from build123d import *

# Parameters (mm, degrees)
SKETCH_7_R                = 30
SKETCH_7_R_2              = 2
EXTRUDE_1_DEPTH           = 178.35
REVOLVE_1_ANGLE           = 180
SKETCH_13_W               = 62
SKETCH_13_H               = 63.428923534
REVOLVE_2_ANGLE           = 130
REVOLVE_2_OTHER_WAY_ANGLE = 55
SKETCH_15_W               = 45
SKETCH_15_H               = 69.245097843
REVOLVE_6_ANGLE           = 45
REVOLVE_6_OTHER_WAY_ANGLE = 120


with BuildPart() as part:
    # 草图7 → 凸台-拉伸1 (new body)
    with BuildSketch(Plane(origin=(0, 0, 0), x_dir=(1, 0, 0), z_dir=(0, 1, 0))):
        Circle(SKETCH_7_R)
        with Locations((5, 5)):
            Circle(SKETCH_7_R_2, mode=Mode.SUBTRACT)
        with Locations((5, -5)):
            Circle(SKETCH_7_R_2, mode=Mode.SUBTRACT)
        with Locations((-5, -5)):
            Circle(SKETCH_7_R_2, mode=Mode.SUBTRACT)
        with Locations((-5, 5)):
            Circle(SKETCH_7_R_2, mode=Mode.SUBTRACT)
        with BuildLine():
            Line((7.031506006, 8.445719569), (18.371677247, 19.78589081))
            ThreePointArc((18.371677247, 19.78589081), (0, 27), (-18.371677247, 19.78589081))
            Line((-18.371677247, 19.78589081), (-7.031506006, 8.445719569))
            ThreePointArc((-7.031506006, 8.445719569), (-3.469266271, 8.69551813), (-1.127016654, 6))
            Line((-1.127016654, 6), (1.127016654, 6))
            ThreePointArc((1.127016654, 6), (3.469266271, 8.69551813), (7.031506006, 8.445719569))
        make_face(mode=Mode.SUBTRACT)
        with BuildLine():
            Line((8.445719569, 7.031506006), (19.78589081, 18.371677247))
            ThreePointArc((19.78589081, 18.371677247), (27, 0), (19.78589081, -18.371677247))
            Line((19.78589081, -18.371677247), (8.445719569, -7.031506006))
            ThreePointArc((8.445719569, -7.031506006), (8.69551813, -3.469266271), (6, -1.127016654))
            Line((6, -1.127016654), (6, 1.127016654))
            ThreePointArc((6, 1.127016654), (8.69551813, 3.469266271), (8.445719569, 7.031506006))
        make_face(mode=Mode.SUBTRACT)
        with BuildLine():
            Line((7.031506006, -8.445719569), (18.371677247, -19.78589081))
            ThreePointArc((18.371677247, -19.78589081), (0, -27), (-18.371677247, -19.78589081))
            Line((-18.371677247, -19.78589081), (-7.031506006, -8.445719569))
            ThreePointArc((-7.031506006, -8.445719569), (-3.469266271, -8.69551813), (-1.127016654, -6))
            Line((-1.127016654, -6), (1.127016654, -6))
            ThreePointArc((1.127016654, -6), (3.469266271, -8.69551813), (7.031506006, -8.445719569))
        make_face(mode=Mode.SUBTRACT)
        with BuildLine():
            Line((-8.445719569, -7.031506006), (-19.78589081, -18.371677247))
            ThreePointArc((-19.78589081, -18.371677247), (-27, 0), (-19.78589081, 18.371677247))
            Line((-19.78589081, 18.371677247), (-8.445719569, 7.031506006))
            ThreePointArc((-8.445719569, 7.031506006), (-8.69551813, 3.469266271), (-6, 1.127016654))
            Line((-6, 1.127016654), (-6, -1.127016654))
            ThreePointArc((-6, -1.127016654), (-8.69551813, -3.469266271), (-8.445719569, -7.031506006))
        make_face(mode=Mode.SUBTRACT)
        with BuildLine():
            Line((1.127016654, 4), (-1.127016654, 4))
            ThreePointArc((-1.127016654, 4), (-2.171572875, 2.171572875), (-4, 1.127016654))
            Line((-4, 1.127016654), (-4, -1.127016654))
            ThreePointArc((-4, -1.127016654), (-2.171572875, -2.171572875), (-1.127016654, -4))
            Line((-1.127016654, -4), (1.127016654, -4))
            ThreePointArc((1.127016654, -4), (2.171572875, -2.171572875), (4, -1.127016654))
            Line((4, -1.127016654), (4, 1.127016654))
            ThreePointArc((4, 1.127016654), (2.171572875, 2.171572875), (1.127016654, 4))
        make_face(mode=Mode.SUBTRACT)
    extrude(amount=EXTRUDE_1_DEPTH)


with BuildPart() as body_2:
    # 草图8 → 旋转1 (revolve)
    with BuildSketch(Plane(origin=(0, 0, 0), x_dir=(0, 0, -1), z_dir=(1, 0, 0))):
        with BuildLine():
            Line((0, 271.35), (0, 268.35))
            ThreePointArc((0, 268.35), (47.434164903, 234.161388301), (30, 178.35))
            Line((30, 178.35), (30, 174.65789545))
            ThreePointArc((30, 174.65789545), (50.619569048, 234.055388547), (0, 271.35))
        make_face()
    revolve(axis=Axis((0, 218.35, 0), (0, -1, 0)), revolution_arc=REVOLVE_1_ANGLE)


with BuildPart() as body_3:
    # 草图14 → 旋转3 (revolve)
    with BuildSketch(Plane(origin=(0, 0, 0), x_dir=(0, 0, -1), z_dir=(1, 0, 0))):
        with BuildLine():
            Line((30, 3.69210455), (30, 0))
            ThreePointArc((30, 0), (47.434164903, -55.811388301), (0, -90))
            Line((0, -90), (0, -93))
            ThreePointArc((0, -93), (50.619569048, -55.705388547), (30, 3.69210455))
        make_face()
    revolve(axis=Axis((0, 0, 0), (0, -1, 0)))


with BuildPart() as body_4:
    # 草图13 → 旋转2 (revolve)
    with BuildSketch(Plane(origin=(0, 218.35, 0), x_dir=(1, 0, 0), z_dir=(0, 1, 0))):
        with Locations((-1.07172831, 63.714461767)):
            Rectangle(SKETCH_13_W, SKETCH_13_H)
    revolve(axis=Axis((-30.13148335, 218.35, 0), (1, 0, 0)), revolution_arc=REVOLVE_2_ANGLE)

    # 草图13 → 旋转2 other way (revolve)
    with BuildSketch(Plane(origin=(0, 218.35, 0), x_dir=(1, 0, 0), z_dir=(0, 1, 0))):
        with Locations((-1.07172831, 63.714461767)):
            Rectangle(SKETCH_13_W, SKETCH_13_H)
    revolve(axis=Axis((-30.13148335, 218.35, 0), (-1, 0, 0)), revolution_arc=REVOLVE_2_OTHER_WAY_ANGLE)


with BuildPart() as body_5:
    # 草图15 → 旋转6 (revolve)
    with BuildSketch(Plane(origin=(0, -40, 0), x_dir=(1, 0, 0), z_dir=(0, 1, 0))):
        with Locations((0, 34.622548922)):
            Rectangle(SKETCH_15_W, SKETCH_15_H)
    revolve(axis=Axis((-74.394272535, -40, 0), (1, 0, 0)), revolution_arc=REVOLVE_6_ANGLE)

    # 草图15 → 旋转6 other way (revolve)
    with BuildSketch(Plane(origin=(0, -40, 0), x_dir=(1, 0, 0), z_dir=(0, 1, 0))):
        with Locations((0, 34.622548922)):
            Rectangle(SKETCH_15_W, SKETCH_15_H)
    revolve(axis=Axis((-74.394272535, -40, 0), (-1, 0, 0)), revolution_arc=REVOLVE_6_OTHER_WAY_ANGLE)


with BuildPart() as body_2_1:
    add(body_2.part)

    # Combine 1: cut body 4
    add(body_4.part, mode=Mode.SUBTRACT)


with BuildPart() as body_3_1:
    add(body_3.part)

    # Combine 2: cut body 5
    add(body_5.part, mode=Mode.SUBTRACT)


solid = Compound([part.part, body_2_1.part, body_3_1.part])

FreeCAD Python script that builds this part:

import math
import FreeCAD as App
import Part
import Sketcher

V = App.Vector
Q = App.Units.Quantity


def add_polygon(sketch, points):
    """Adds a closed chain of lines whose ends are joined by coincident constraints."""
    first, n = sketch.GeometryCount, len(points)
    for a, b in zip(points, points[1:] + points[:1]):
        sketch.addGeometry(Part.LineSegment(App.Vector(*a, 0), App.Vector(*b, 0)), False)
    for i in range(n):
        sketch.addConstraint(Sketcher.Constraint("Coincident", first + i, 2, first + (i + 1) % n, 1))

doc = App.newDocument("Part")
body = doc.addObject("PartDesign::Body", "Body")

# Sketch on XZ plane
sketch1 = body.newObject("Sketcher::SketchObject", "Sketch")
sketch1.AttachmentSupport = (doc.getObject("XZ_Plane"), [""])
sketch1.MapMode = "FlatFace"
sketch1.addGeometry(Part.Circle(V(0, 0, 0), V(0, 0, 1), 30), False)
sketch1.addGeometry(Part.ArcOfCircle(Part.Circle(V(5, 5, 0), V(0, 0, 1), 4), math.radians(59), math.radians(166)), False)
sketch1.addGeometry(Part.LineSegment(V(7, 8.4, 0), V(18.4, 19.8, 0)), False)
sketch1.addGeometry(Part.ArcOfCircle(Part.Circle(V(0, 0, 0), V(0, 0, 1), 27), math.radians(47), math.radians(133)), False)
sketch1.addGeometry(Part.LineSegment(V(-18.4, 19.8, 0), V(-7, 8.4, 0)), False)
sketch1.addGeometry(Part.ArcOfCircle(Part.Circle(V(-5, 5, 0), V(0, 0, 1), 4), math.radians(14), math.radians(121)), False)
sketch1.addGeometry(Part.LineSegment(V(-1.1, 6, 0), V(1.1, 6, 0)), False)
sketch1.addGeometry(Part.Circle(V(-5, 5, 0), V(0, 0, 1), 2), False)
sketch1.addGeometry(Part.Circle(V(5, 5, 0), V(0, 0, 1), 2), False)
sketch1.addGeometry(Part.ArcOfCircle(Part.Circle(V(-5, 5, 0), V(0, 0, 1), 4), math.radians(149), math.radians(256)), False)
sketch1.addGeometry(Part.LineSegment(V(-8.4, 7, 0), V(-19.8, 18.4, 0)), False)
sketch1.addGeometry(Part.ArcOfCircle(Part.Circle(V(0, 0, 0), V(0, 0, 1), 27), math.radians(137), math.radians(223)), False)
sketch1.addGeometry(Part.LineSegment(V(-19.8, -18.4, 0), V(-8.4, -7, 0)), False)
sketch1.addGeometry(Part.ArcOfCircle(Part.Circle(V(-5, -5, 0), V(0, 0, 1), 4), math.radians(104), math.radians(211)), False)
sketch1.addGeometry(Part.LineSegment(V(-6, -1.1, 0), V(-6, 1.1, 0)), False)
sketch1.addGeometry(Part.LineSegment(V(-1.1, -4, 0), V(1.1, -4, 0)), False)
sketch1.addGeometry(Part.ArcOfCircle(Part.Circle(V(5, -5, 0), V(0, 0, 1), 4), math.radians(104), math.radians(166)), False)
sketch1.addGeometry(Part.LineSegment(V(4, -1.1, 0), V(4, 1.1, 0)), False)
sketch1.addGeometry(Part.ArcOfCircle(Part.Circle(V(5, 5, 0), V(0, 0, 1), 4), math.radians(-166), math.radians(-104)), False)
sketch1.addGeometry(Part.LineSegment(V(1.1, 4, 0), V(-1.1, 4, 0)), False)
sketch1.addGeometry(Part.ArcOfCircle(Part.Circle(V(-5, 5, 0), V(0, 0, 1), 4), math.radians(-76), math.radians(-14)), False)
sketch1.addGeometry(Part.LineSegment(V(-4, 1.1, 0), V(-4, -1.1, 0)), False)
sketch1.addGeometry(Part.ArcOfCircle(Part.Circle(V(-5, -5, 0), V(0, 0, 1), 4), math.radians(14), math.radians(76)), False)
sketch1.addGeometry(Part.Circle(V(-5, -5, 0), V(0, 0, 1), 2), False)
sketch1.addGeometry(Part.LineSegment(V(18.4, -19.8, 0), V(7, -8.4, 0)), False)
sketch1.addGeometry(Part.ArcOfCircle(Part.Circle(V(5, -5, 0), V(0, 0, 1), 4), math.radians(-166), math.radians(-59)), False)
sketch1.addGeometry(Part.LineSegment(V(1.1, -6, 0), V(-1.1, -6, 0)), False)
sketch1.addGeometry(Part.ArcOfCircle(Part.Circle(V(-5, -5, 0), V(0, 0, 1), 4), math.radians(-121), math.radians(-14)), False)
sketch1.addGeometry(Part.LineSegment(V(-7, -8.4, 0), V(-18.4, -19.8, 0)), False)
sketch1.addGeometry(Part.ArcOfCircle(Part.Circle(V(0, 0, 0), V(0, 0, 1), 27), math.radians(-133), math.radians(-47)), False)
sketch1.addGeometry(Part.Circle(V(5, -5, 0), V(0, 0, 1), 2), False)
sketch1.addGeometry(Part.ArcOfCircle(Part.Circle(V(5, -5, 0), V(0, 0, 1), 4), math.radians(-31), math.radians(76)), False)
sketch1.addGeometry(Part.LineSegment(V(8.4, -7, 0), V(19.8, -18.4, 0)), False)
sketch1.addGeometry(Part.ArcOfCircle(Part.Circle(V(0, 0, 0), V(0, 0, 1), 27), math.radians(-43), math.radians(43)), False)
sketch1.addGeometry(Part.LineSegment(V(19.8, 18.4, 0), V(8.4, 7, 0)), False)
sketch1.addGeometry(Part.ArcOfCircle(Part.Circle(V(5, 5, 0), V(0, 0, 1), 4), math.radians(-76), math.radians(31)), False)
sketch1.addGeometry(Part.LineSegment(V(6, 1.1, 0), V(6, -1.1, 0)), False)
sketch1.addConstraint(Sketcher.Constraint("Coincident", 1, 1, 2, 1))
sketch1.addConstraint(Sketcher.Constraint("Coincident", 2, 2, 3, 1))
sketch1.addConstraint(Sketcher.Constraint("Coincident", 3, 2, 4, 1))
sketch1.addConstraint(Sketcher.Constraint("Coincident", 4, 2, 5, 2))
sketch1.addConstraint(Sketcher.Constraint("Coincident", 5, 1, 6, 1))
sketch1.addConstraint(Sketcher.Constraint("Coincident", 6, 2, 1, 2))
sketch1.addConstraint(Sketcher.Constraint("Coincident", 9, 1, 10, 1))
sketch1.addConstraint(Sketcher.Constraint("Coincident", 10, 2, 11, 1))
sketch1.addConstraint(Sketcher.Constraint("Coincident", 11, 2, 12, 1))
sketch1.addConstraint(Sketcher.Constraint("Coincident", 12, 2, 13, 2))
sketch1.addConstraint(Sketcher.Constraint("Coincident", 13, 1, 14, 1))
sketch1.addConstraint(Sketcher.Constraint("Coincident", 14, 2, 9, 2))
sketch1.addConstraint(Sketcher.Constraint("Coincident", 15, 2, 16, 2))
sketch1.addConstraint(Sketcher.Constraint("Coincident", 16, 1, 17, 1))
sketch1.addConstraint(Sketcher.Constraint("Coincident", 17, 2, 18, 2))
sketch1.addConstraint(Sketcher.Constraint("Coincident", 18, 1, 19, 1))
sketch1.addConstraint(Sketcher.Constraint("Coincident", 19, 2, 20, 2))
sketch1.addConstraint(Sketcher.Constraint("Coincident", 20, 1, 21, 1))
sketch1.addConstraint(Sketcher.Constraint("Coincident", 21, 2, 22, 2))
sketch1.addConstraint(Sketcher.Constraint("Coincident", 22, 1, 15, 1))
sketch1.addConstraint(Sketcher.Constraint("Coincident", 24, 2, 25, 2))
sketch1.addConstraint(Sketcher.Constraint("Coincident", 25, 1, 26, 1))
sketch1.addConstraint(Sketcher.Constraint("Coincident", 26, 2, 27, 2))
sketch1.addConstraint(Sketcher.Constraint("Coincident", 27, 1, 28, 1))
sketch1.addConstraint(Sketcher.Constraint("Coincident", 28, 2, 29, 1))
sketch1.addConstraint(Sketcher.Constraint("Coincident", 29, 2, 24, 1))
sketch1.addConstraint(Sketcher.Constraint("Coincident", 31, 1, 32, 1))
sketch1.addConstraint(Sketcher.Constraint("Coincident", 32, 2, 33, 1))
sketch1.addConstraint(Sketcher.Constraint("Coincident", 33, 2, 34, 1))
sketch1.addConstraint(Sketcher.Constraint("Coincident", 34, 2, 35, 2))
sketch1.addConstraint(Sketcher.Constraint("Coincident", 35, 1, 36, 1))
sketch1.addConstraint(Sketcher.Constraint("Coincident", 36, 2, 31, 2))
sketch1.addConstraint(Sketcher.Constraint("Horizontal", 6))
sketch1.addConstraint(Sketcher.Constraint("Vertical", 14))
sketch1.addConstraint(Sketcher.Constraint("Horizontal", 15))
sketch1.addConstraint(Sketcher.Constraint("Vertical", 17))
sketch1.addConstraint(Sketcher.Constraint("Horizontal", 19))
sketch1.addConstraint(Sketcher.Constraint("Vertical", 21))
sketch1.addConstraint(Sketcher.Constraint("Horizontal", 26))
sketch1.addConstraint(Sketcher.Constraint("Vertical", 36))
sketch1.addConstraint(Sketcher.Constraint("Coincident", 0, 3, -1, 1))
sketch1.addConstraint(Sketcher.Constraint("Coincident", 3, 3, -1, 1))
sketch1.addConstraint(Sketcher.Constraint("Coincident", 11, 3, -1, 1))
sketch1.addConstraint(Sketcher.Constraint("Coincident", 29, 3, -1, 1))
sketch1.addConstraint(Sketcher.Constraint("Coincident", 33, 3, -1, 1))
sketch1.addConstraint(Sketcher.Constraint("Coincident", 7, 3, 5, 3))
sketch1.addConstraint(Sketcher.Constraint("Coincident", 8, 3, 1, 3))
sketch1.addConstraint(Sketcher.Constraint("Coincident", 9, 3, 5, 3))
sketch1.addConstraint(Sketcher.Constraint("Coincident", 18, 3, 1, 3))
sketch1.addConstraint(Sketcher.Constraint("Coincident", 20, 3, 5, 3))
sketch1.addConstraint(Sketcher.Constraint("Coincident", 22, 3, 13, 3))
sketch1.addConstraint(Sketcher.Constraint("Coincident", 23, 3, 13, 3))
sketch1.addConstraint(Sketcher.Constraint("Coincident", 25, 3, 16, 3))
sketch1.addConstraint(Sketcher.Constraint("Coincident", 27, 3, 13, 3))
sketch1.addConstraint(Sketcher.Constraint("Coincident", 30, 3, 16, 3))
sketch1.addConstraint(Sketcher.Constraint("Coincident", 31, 3, 16, 3))
sketch1.addConstraint(Sketcher.Constraint("Coincident", 35, 3, 1, 3))
sketch1.addConstraint(Sketcher.Constraint("Equal", 1, 5))
sketch1.addConstraint(Sketcher.Constraint("Equal", 7, 8))
sketch1.addConstraint(Sketcher.Constraint("Equal", 5, 9))
sketch1.addConstraint(Sketcher.Constraint("Equal", 3, 11))
sketch1.addConstraint(Sketcher.Constraint("Equal", 9, 13))
sketch1.addConstraint(Sketcher.Constraint("Equal", 13, 16))
sketch1.addConstraint(Sketcher.Constraint("Equal", 16, 18))
sketch1.addConstraint(Sketcher.Constraint("Equal", 18, 20))
sketch1.addConstraint(Sketcher.Constraint("Equal", 20, 22))
sketch1.addConstraint(Sketcher.Constraint("Equal", 8, 23))
sketch1.addConstraint(Sketcher.Constraint("Equal", 22, 25))
sketch1.addConstraint(Sketcher.Constraint("Equal", 25, 27))
sketch1.addConstraint(Sketcher.Constraint("Equal", 11, 29))
sketch1.addConstraint(Sketcher.Constraint("Equal", 23, 30))
sketch1.addConstraint(Sketcher.Constraint("Equal", 27, 31))
sketch1.addConstraint(Sketcher.Constraint("Equal", 29, 33))
sketch1.addConstraint(Sketcher.Constraint("Equal", 31, 35))
sketch1.addConstraint(Sketcher.Constraint("Symmetric", 1, 3, 13, 3, -1, 1))
sketch1.addConstraint(Sketcher.Constraint("Symmetric", 5, 3, 16, 3, -1, 1))
sketch1.addConstraint(Sketcher.Constraint("Symmetric", 1, 3, 5, 3, -2))
sketch1.addConstraint(Sketcher.Constraint("Perpendicular", 2, 4))
sketch1.addConstraint(Sketcher.Constraint("Parallel", 4, 10))
sketch1.addConstraint(Sketcher.Constraint("Perpendicular", 10, 12))
sketch1.addConstraint(Sketcher.Constraint("Perpendicular", 12, 24))
sketch1.addConstraint(Sketcher.Constraint("Perpendicular", 24, 28))
sketch1.addConstraint(Sketcher.Constraint("Perpendicular", 28, 32))
sketch1.addConstraint(Sketcher.Constraint("Perpendicular", 32, 34))
sketch1.addConstraint(Sketcher.Constraint("Horizontal", 2, 2, 3, 2))
sketch1.addConstraint(Sketcher.Constraint("Horizontal", 1, 1, 4, 2))
sketch1.addConstraint(Sketcher.Constraint("Horizontal", 13, 1, 16, 1))
sketch1.addConstraint(Sketcher.Constraint("Horizontal", 17, 2, 20, 1))
sketch1.addConstraint(Sketcher.Constraint("Horizontal", 24, 2, 27, 1))
sketch1.addConstraint(Sketcher.Constraint("Horizontal", 12, 2, 31, 1))
sketch1.addConstraint(Sketcher.Constraint("Horizontal", 10, 2, 33, 2))
sketch1.addConstraint(Sketcher.Constraint("Horizontal", 20, 1, 35, 1))
sketch1.addConstraint(Sketcher.Constraint("Vertical", 10, 2, 11, 2))
sketch1.addConstraint(Sketcher.Constraint("Vertical", 6, 2, 15, 2))
sketch1.addConstraint(Sketcher.Constraint("Vertical", 15, 2, 18, 1))
sketch1.addConstraint(Sketcher.Constraint("Vertical", 1, 1, 24, 2))
sketch1.addConstraint(Sketcher.Constraint("Vertical", 18, 1, 25, 1))
sketch1.addConstraint(Sketcher.Constraint("Equal", 26, 14))
sketch1.addConstraint(Sketcher.Constraint("Equal", 4, 10))
sketch1.addConstraint(Sketcher.Constraint("Diameter", 0, Q("60 mm")))
sketch1.addConstraint(Sketcher.Constraint("Diameter", 7, Q("4 mm")))
sketch1.addConstraint(Sketcher.Constraint("Radius", 1, Q("4 mm")))
sketch1.addConstraint(Sketcher.Constraint("Radius", 3, Q("27 mm")))
sketch1.addConstraint(Sketcher.Constraint("DistanceX", -1, 1, 1, 3, Q("5 mm")))
sketch1.addConstraint(Sketcher.Constraint("DistanceY", -1, 1, 1, 3, Q("5 mm")))
sketch1.addConstraint(Sketcher.Constraint("DistanceY", -1, 1, 5, 1, Q("6 mm")))
sketch1.addConstraint(Sketcher.Constraint("DistanceY", -1, 1, 1, 1, Q("8.44572 mm")))
pad1 = body.newObject("PartDesign::Pad", "Pad")
pad1.Profile = sketch1
pad1.Length = 178.35
pad1.Reversed = True
body2 = doc.addObject("PartDesign::Body", "Body001")

# Sketch on YZ plane
sketch2 = body2.newObject("Sketcher::SketchObject", "Sketch001")
sketch2.AttachmentSupport = (doc.getObject("YZ_Plane001"), [""])
sketch2.MapMode = "FlatFace"
sketch2.addGeometry(Part.LineSegment(V(271.4, 0, 0), V(268.4, 0, 0)), False)
sketch2.addGeometry(Part.ArcOfCircle(Part.Circle(V(218.3, 0, 0), V(0, 0, 1), 50), math.radians(-143), math.radians(0)), False)
sketch2.addGeometry(Part.LineSegment(V(178.3, -30, 0), V(174.7, -30, 0)), False)
sketch2.addGeometry(Part.ArcOfCircle(Part.Circle(V(218.3, 0, 0), V(0, 0, 1), 53), math.radians(-146), math.radians(0)), False)
sketch2.addConstraint(Sketcher.Constraint("Coincident", 0, 2, 1, 2))
sketch2.addConstraint(Sketcher.Constraint("Coincident", 1, 1, 2, 1))
sketch2.addConstraint(Sketcher.Constraint("Coincident", 2, 2, 3, 1))
sketch2.addConstraint(Sketcher.Constraint("Coincident", 3, 2, 0, 1))
sketch2.addConstraint(Sketcher.Constraint("Horizontal", 0))
sketch2.addConstraint(Sketcher.Constraint("Horizontal", 2))
sketch2.addConstraint(Sketcher.Constraint("Coincident", 3, 3, 1, 3))
sketch2.addConstraint(Sketcher.Constraint("PointOnObject", 1, 3, -1))
sketch2.addConstraint(Sketcher.Constraint("PointOnObject", 0, 2, -1))
sketch2.addConstraint(Sketcher.Constraint("Radius", 1, Q("50 mm")))
sketch2.addConstraint(Sketcher.Constraint("Radius", 3, Q("53 mm")))
sketch2.addConstraint(Sketcher.Constraint("DistanceY", 1, 1, -1, 1, Q("30 mm")))
sketch2.addConstraint(Sketcher.Constraint("DistanceX", -1, 1, 1, 3, Q("218.35 mm")))
revolution = body2.newObject("PartDesign::Revolution", "Revolution")
revolution.Profile = sketch2
revolution.ReferenceAxis = (sketch2, ["H_Axis"])
revolution.Angle = 180
revolution.Reversed = True
body3 = doc.addObject("PartDesign::Body", "Body002")

# Sketch on YZ plane
sketch3 = body3.newObject("Sketcher::SketchObject", "Sketch002")
sketch3.AttachmentSupport = (doc.getObject("YZ_Plane002"), [""])
sketch3.MapMode = "FlatFace"
sketch3.addGeometry(Part.LineSegment(V(3.7, -30, 0), V(0, -30, 0)), False)
sketch3.addGeometry(Part.ArcOfCircle(Part.Circle(V(-40, 0, 0), V(0, 0, 1), 50), math.radians(180), math.radians(323)), False)
sketch3.addGeometry(Part.LineSegment(V(-90, 0, 0), V(-93, 0, 0)), False)
sketch3.addGeometry(Part.ArcOfCircle(Part.Circle(V(-40, 0, 0), V(0, 0, 1), 53), math.radians(180), math.radians(326)), False)
sketch3.addConstraint(Sketcher.Constraint("Coincident", 0, 2, 1, 2))
sketch3.addConstraint(Sketcher.Constraint("Coincident", 1, 1, 2, 1))
sketch3.addConstraint(Sketcher.Constraint("Coincident", 2, 2, 3, 1))
sketch3.addConstraint(Sketcher.Constraint("Coincident", 3, 2, 0, 1))
sketch3.addConstraint(Sketcher.Constraint("Horizontal", 0))
sketch3.addConstraint(Sketcher.Constraint("Horizontal", 2))
sketch3.addConstraint(Sketcher.Constraint("Coincident", 3, 3, 1, 3))
sketch3.addConstraint(Sketcher.Constraint("PointOnObject", 1, 3, -1))
sketch3.addConstraint(Sketcher.Constraint("PointOnObject", 0, 2, -2))
sketch3.addConstraint(Sketcher.Constraint("PointOnObject", 1, 1, -1))
sketch3.addConstraint(Sketcher.Constraint("Radius", 1, Q("50 mm")))
sketch3.addConstraint(Sketcher.Constraint("Radius", 3, Q("53 mm")))
sketch3.addConstraint(Sketcher.Constraint("DistanceX", 1, 3, -1, 1, Q("40 mm")))
revolution2 = body3.newObject("PartDesign::Revolution", "Revolution001")
revolution2.Profile = sketch3
revolution2.ReferenceAxis = (sketch3, ["H_Axis"])
revolution2.Angle = 360
body4 = doc.addObject("PartDesign::Body", "Body003")

# Sketch on XZ plane
sketch4 = body4.newObject("Sketcher::SketchObject", "Sketch003")
sketch4.AttachmentSupport = (doc.getObject("XZ_Plane003"), [""])
sketch4.MapMode = "FlatFace"
sketch4.AttachmentOffset = App.Placement(V(0, 0, -218.35), App.Rotation())
add_polygon(sketch4, [(-32, -95), (-32, -32), (30, -32), (30, -95)])  # lines 0-3
sketch4.addConstraint(Sketcher.Constraint("Vertical", 0))
sketch4.addConstraint(Sketcher.Constraint("Horizontal", 1))
sketch4.addConstraint(Sketcher.Constraint("Vertical", 2))
sketch4.addConstraint(Sketcher.Constraint("Horizontal", 3))
sketch4.addConstraint(Sketcher.Constraint("DistanceX", 1, 1, 1, 2, Q("62 mm")))
sketch4.addConstraint(Sketcher.Constraint("DistanceY", 0, 2, -1, 1, Q("32 mm")))
sketch4.addConstraint(Sketcher.Constraint("DistanceY", 0, 1, 0, 2, Q("63.428924 mm")))
sketch4.addConstraint(Sketcher.Constraint("DistanceX", 0, 2, -1, 1, Q("32.071728 mm")))
revolution3 = body4.newObject("PartDesign::Revolution", "Revolution002")
revolution3.Profile = sketch4
revolution3.ReferenceAxis = (sketch4, ["H_Axis"])
revolution3.Angle = 130

# Sketch on XZ plane
sketch5 = body4.newObject("Sketcher::SketchObject", "Sketch004")
sketch5.AttachmentSupport = (doc.getObject("XZ_Plane003"), [""])
sketch5.MapMode = "FlatFace"
sketch5.AttachmentOffset = App.Placement(V(0, 0, -218.35), App.Rotation())
add_polygon(sketch5, [(-32, -95), (-32, -32), (30, -32), (30, -95)])  # lines 0-3
sketch5.addConstraint(Sketcher.Constraint("Vertical", 0))
sketch5.addConstraint(Sketcher.Constraint("Horizontal", 1))
sketch5.addConstraint(Sketcher.Constraint("Vertical", 2))
sketch5.addConstraint(Sketcher.Constraint("Horizontal", 3))
sketch5.addConstraint(Sketcher.Constraint("DistanceX", 1, 1, 1, 2, Q("62 mm")))
sketch5.addConstraint(Sketcher.Constraint("DistanceY", 0, 2, -1, 1, Q("32 mm")))
sketch5.addConstraint(Sketcher.Constraint("DistanceY", 0, 1, 0, 2, Q("63.428924 mm")))
sketch5.addConstraint(Sketcher.Constraint("DistanceX", 0, 2, -1, 1, Q("32.071728 mm")))
revolution4 = body4.newObject("PartDesign::Revolution", "Revolution003")
revolution4.Profile = sketch5
revolution4.ReferenceAxis = (sketch5, ["H_Axis"])
revolution4.Angle = 55
revolution4.Reversed = True
body5 = doc.addObject("PartDesign::Body", "Body004")

# Sketch on XZ plane
sketch6 = body5.newObject("Sketcher::SketchObject", "Sketch005")
sketch6.AttachmentSupport = (doc.getObject("XZ_Plane004"), [""])
sketch6.MapMode = "FlatFace"
sketch6.AttachmentOffset = App.Placement(V(0, 0, 40), App.Rotation())
add_polygon(sketch6, [(-22, -69), (-22, 0), (22, 0), (22, -69)])  # lines 0-3
sketch6.addConstraint(Sketcher.Constraint("Vertical", 0))
sketch6.addConstraint(Sketcher.Constraint("Horizontal", 1))
sketch6.addConstraint(Sketcher.Constraint("Vertical", 2))
sketch6.addConstraint(Sketcher.Constraint("Horizontal", 3))
sketch6.addConstraint(Sketcher.Constraint("Symmetric", 0, 2, 1, 2, -1, 1))
sketch6.addConstraint(Sketcher.Constraint("DistanceX", 1, 1, 1, 2, Q("45 mm")))
sketch6.addConstraint(Sketcher.Constraint("DistanceY", 0, 1, 0, 2, Q("69.245098 mm")))
revolution5 = body5.newObject("PartDesign::Revolution", "Revolution004")
revolution5.Profile = sketch6
revolution5.ReferenceAxis = (sketch6, ["H_Axis"])
revolution5.Angle = 45

# Sketch on XZ plane
sketch7 = body5.newObject("Sketcher::SketchObject", "Sketch006")
sketch7.AttachmentSupport = (doc.getObject("XZ_Plane004"), [""])
sketch7.MapMode = "FlatFace"
sketch7.AttachmentOffset = App.Placement(V(0, 0, 40), App.Rotation())
add_polygon(sketch7, [(-22, -69), (-22, 0), (22, 0), (22, -69)])  # lines 0-3
sketch7.addConstraint(Sketcher.Constraint("Vertical", 0))
sketch7.addConstraint(Sketcher.Constraint("Horizontal", 1))
sketch7.addConstraint(Sketcher.Constraint("Vertical", 2))
sketch7.addConstraint(Sketcher.Constraint("Horizontal", 3))
sketch7.addConstraint(Sketcher.Constraint("Symmetric", 0, 2, 1, 2, -1, 1))
sketch7.addConstraint(Sketcher.Constraint("DistanceX", 1, 1, 1, 2, Q("45 mm")))
sketch7.addConstraint(Sketcher.Constraint("DistanceY", 0, 1, 0, 2, Q("69.245098 mm")))
revolution6 = body5.newObject("PartDesign::Revolution", "Revolution005")
revolution6.Profile = sketch7
revolution6.ReferenceAxis = (sketch7, ["H_Axis"])
revolution6.Angle = 120
revolution6.Reversed = True
doc.recompute()

boolean = body2.newObject("PartDesign::Boolean", "Boolean")
boolean.Type = "Cut"
boolean.addObjects([body4])
doc.recompute()

boolean2 = body3.newObject("PartDesign::Boolean", "Boolean001")
boolean2.Type = "Cut"
boolean2.addObjects([body5])

doc.recompute()
